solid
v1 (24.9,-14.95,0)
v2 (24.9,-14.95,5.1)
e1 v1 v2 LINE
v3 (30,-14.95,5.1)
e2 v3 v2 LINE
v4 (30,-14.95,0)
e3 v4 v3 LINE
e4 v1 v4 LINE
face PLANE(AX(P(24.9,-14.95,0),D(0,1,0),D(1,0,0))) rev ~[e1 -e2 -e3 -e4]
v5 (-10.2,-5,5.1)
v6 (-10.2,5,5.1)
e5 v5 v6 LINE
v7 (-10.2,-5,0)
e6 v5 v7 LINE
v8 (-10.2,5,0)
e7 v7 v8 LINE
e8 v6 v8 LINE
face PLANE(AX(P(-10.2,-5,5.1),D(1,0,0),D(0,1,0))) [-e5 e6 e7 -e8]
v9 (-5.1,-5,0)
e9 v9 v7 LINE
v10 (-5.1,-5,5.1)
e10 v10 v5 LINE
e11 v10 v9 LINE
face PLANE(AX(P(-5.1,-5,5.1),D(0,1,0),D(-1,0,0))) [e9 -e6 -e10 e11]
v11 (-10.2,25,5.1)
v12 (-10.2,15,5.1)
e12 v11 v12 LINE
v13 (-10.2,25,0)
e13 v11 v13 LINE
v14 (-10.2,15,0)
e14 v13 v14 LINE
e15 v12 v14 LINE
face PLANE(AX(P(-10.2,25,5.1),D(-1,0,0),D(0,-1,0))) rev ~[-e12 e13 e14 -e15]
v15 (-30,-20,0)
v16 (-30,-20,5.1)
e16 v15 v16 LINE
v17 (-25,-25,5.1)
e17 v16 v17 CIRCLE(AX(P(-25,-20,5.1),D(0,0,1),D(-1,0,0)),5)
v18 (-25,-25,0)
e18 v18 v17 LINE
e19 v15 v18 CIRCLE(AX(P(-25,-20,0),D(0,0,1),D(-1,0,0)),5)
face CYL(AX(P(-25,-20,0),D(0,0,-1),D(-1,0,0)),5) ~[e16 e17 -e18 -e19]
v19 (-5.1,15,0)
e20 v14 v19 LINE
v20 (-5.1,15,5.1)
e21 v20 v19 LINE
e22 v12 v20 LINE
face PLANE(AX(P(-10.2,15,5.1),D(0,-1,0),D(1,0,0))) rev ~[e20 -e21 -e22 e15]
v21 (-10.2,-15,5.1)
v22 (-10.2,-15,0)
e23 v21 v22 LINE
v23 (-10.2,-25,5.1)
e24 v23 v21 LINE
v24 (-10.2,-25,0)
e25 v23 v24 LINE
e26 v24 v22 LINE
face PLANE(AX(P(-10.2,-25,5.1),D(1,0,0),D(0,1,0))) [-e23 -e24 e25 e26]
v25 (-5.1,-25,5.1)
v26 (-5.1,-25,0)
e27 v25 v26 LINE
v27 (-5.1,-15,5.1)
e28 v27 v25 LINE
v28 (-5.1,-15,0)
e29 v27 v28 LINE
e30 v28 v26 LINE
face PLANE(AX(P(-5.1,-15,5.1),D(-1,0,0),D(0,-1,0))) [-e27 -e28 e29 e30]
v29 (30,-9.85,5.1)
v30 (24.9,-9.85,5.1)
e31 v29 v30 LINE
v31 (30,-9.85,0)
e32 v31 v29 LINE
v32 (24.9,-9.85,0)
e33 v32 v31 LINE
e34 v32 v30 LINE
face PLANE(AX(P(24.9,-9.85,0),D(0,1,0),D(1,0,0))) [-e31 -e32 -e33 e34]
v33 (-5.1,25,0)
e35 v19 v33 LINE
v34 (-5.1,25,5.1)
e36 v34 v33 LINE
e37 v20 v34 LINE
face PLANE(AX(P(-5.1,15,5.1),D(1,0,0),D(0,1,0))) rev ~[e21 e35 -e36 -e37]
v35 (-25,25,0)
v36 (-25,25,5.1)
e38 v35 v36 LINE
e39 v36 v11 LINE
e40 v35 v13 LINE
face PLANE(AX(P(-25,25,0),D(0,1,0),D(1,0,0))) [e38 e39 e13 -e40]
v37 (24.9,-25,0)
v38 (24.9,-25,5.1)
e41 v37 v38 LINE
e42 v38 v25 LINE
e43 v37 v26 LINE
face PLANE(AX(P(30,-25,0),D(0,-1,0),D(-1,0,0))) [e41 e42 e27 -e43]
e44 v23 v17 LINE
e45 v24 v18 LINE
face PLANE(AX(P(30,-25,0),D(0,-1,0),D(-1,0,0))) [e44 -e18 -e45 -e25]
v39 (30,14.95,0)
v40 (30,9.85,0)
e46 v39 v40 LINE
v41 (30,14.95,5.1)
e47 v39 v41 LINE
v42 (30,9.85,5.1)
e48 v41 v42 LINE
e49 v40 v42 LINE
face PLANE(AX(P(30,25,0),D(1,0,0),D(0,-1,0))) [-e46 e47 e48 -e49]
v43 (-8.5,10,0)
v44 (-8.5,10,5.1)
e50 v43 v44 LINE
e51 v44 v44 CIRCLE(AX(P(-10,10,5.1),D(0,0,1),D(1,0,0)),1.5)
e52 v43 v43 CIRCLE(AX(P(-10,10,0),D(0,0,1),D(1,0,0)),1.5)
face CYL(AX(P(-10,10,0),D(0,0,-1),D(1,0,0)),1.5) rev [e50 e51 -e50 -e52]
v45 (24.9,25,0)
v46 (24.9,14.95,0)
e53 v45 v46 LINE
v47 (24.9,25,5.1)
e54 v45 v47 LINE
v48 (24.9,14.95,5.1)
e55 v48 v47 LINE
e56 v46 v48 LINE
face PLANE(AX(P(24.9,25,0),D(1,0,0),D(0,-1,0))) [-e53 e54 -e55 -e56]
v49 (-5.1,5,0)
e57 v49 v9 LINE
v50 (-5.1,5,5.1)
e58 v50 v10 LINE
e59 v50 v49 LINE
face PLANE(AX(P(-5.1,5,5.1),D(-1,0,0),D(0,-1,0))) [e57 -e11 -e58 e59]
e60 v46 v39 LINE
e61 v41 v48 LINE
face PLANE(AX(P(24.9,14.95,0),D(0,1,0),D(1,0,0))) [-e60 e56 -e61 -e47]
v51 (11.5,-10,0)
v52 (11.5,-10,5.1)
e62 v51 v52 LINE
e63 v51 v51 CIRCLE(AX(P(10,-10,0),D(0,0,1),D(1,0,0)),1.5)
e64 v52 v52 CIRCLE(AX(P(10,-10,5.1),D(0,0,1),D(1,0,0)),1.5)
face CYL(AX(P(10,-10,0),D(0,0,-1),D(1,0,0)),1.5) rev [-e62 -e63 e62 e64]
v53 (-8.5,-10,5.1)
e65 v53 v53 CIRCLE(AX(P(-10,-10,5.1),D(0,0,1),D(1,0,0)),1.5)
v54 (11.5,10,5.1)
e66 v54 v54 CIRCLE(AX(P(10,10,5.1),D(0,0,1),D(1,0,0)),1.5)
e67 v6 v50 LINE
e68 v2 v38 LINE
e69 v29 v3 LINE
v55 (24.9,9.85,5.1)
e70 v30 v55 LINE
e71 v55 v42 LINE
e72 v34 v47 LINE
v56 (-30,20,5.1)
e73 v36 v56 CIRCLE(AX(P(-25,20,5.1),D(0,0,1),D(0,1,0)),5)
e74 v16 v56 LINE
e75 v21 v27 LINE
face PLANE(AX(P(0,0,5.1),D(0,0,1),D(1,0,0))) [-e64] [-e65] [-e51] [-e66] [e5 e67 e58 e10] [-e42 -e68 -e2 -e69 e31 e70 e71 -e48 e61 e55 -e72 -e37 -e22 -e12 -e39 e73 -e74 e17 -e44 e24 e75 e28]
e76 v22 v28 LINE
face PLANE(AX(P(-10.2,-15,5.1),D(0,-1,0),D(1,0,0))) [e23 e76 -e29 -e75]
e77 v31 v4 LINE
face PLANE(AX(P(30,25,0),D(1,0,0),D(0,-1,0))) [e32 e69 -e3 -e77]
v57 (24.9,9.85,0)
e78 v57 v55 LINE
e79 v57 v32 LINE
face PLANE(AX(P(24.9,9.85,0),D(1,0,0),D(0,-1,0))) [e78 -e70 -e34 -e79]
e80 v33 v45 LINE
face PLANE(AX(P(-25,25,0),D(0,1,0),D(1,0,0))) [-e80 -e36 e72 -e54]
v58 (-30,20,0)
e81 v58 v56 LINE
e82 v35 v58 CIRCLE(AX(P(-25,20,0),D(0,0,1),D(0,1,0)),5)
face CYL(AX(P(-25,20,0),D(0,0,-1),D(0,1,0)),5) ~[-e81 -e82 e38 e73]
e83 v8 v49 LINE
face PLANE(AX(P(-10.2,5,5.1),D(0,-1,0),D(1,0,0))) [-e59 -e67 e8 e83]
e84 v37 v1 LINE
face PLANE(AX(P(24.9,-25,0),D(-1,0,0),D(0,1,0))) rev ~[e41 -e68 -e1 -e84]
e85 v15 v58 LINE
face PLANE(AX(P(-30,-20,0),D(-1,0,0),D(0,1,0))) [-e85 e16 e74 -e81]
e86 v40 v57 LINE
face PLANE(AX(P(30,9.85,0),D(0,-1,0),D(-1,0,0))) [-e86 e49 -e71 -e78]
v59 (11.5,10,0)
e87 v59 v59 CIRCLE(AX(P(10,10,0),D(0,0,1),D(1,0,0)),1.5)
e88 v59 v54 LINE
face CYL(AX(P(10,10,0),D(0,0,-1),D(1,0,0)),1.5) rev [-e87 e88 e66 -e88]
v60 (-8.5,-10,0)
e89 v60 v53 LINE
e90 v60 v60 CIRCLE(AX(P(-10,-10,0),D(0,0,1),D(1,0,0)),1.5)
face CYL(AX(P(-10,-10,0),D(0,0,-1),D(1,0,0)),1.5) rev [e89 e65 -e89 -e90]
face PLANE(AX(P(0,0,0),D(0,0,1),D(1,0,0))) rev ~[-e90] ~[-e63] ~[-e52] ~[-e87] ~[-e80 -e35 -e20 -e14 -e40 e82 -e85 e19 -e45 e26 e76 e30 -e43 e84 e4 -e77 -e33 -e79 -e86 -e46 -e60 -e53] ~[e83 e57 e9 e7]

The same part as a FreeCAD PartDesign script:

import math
import FreeCAD as App
import Part
import Sketcher
from FreeCAD import Vector

doc = App.newDocument("Part")
body = doc.addObject("PartDesign::Body", "Body")

# Sketch on XY plane
sketch1 = body.newObject("Sketcher::SketchObject", "Sketch")
sketch1.AttachmentSupport = (doc.getObject("XY_Plane"), [""])
sketch1.MapMode = "FlatFace"
sketch1.addGeometry([
    Part.LineSegment(Vector(-25, -25, 0), Vector(30, -25, 0)),  # 0
    Part.LineSegment(Vector(30, -25, 0), Vector(30, 25, 0)),  # 1
    Part.LineSegment(Vector(30, 25, 0), Vector(-25, 25, 0)),  # 2
    Part.ArcOfCircle(Part.Circle(Vector(-25, 20, 0), Vector(0, 0, 1), 5), math.radians(90), math.radians(180)),  # 3
    Part.LineSegment(Vector(-30, 20, 0), Vector(-30, -20, 0)),  # 4
    Part.ArcOfCircle(Part.Circle(Vector(-25, -20, 0), Vector(0, 0, 1), 5), math.radians(180), math.radians(270)),  # 5
    Part.Circle(Vector(-10, -10, 0), Vector(0, 0, 1), 1.5),  # 6
    Part.Circle(Vector(10, -10, 0), Vector(0, 0, 1), 1.5),  # 7
    Part.Circle(Vector(-10, 10, 0), Vector(0, 0, 1), 1.5),  # 8
    Part.Circle(Vector(10, 10, 0), Vector(0, 0, 1), 1.5),  # 9
], False)
sketch1.addConstraint([
    Sketcher.Constraint("Coincident", 0, 2, 1, 1),
    Sketcher.Constraint("Coincident", 1, 2, 2, 1),
    Sketcher.Constraint("Tangent", 2, 2, 3, 1),
    Sketcher.Constraint("Tangent", 3, 2, 4, 1),
    Sketcher.Constraint("Tangent", 4, 2, 5, 1),
    Sketcher.Constraint("Tangent", 5, 2, 0, 1),
    Sketcher.Constraint("Horizontal", 0),
    Sketcher.Constraint("Vertical", 1),
    Sketcher.Constraint("Horizontal", 2),
    Sketcher.Constraint("Vertical", 4),
    Sketcher.Constraint("Equal", 3, 5),
    Sketcher.Constraint("Equal", 6, 7),
    Sketcher.Constraint("Equal", 7, 8),
    Sketcher.Constraint("Equal", 8, 9),
    Sketcher.Constraint("Symmetric", 7, 3, 8, 3, -1, 1),
    Sketcher.Constraint("Symmetric", 6, 3, 9, 3, -1, 1),
    Sketcher.Constraint("Symmetric", 6, 3, 7, 3, -2),
    Sketcher.Constraint("Diameter", 6, 3.0),
    Sketcher.Constraint("Radius", 3, 5.0),
    Sketcher.Constraint("DistanceY", 1, 1, 1, 2, 50.0),
    Sketcher.Constraint("DistanceX", 6, 3, -1, 1, 10.0),
    Sketcher.Constraint("DistanceY", 6, 3, -1, 1, 10.0),
    Sketcher.Constraint("DistanceY", 5, 3, 6, 3, 10.0),
    Sketcher.Constraint("DistanceX", 0, 1, 0, 2, 55.0),
    Sketcher.Constraint("DistanceX", 3, 3, -1, 1, 25.0),
])
pad1 = body.newObject("PartDesign::Pad", "Pad")
pad1.Profile = sketch1
pad1.Length = 5.1

# Sketch on XY plane
sketch2 = body.newObject("Sketcher::SketchObject", "Sketch001")
sketch2.AttachmentSupport = (doc.getObject("XY_Plane"), [""])
sketch2.MapMode = "FlatFace"
sketch2.addGeometry([
    Part.LineSegment(Vector(25, -15, 0), Vector(30, -15, 0)),  # 0
    Part.LineSegment(Vector(30, -15, 0), Vector(30, -25, 0)),  # 1
    Part.LineSegment(Vector(30, -25, 0), Vector(25, -25, 0)),  # 2
    Part.LineSegment(Vector(25, -25, 0), Vector(25, -15, 0)),  # 3
    Part.LineSegment(Vector(25, 10, 0), Vector(30, 10, 0)),  # 4
    Part.LineSegment(Vector(30, 10, 0), Vector(30, -10, 0)),  # 5
    Part.LineSegment(Vector(30, -10, 0), Vector(25, -10, 0)),  # 6
    Part.LineSegment(Vector(25, -10, 0), Vector(25, 10, 0)),  # 7
    Part.LineSegment(Vector(25, 25, 0), Vector(30, 25, 0)),  # 8
    Part.LineSegment(Vector(30, 25, 0), Vector(30, 15, 0)),  # 9
    Part.LineSegment(Vector(30, 15, 0), Vector(25, 15, 0)),  # 10
    Part.LineSegment(Vector(25, 15, 0), Vector(25, 25, 0)),  # 11
], False)
sketch2.addConstraint([
    Sketcher.Constraint("Coincident", 0, 2, 1, 1),
    Sketcher.Constraint("Coincident", 1, 2, 2, 1),
    Sketcher.Constraint("Coincident", 2, 2, 3, 1),
    Sketcher.Constraint("Coincident", 3, 2, 0, 1),
    Sketcher.Constraint("Coincident", 4, 2, 5, 1),
    Sketcher.Constraint("Coincident", 5, 2, 6, 1),
    Sketcher.Constraint("Coincident", 6, 2, 7, 1),
    Sketcher.Constraint("Coincident", 7, 2, 4, 1),
    Sketcher.Constraint("Coincident", 8, 2, 9, 1),
    Sketcher.Constraint("Coincident", 9, 2, 10, 1),
    Sketcher.Constraint("Coincident", 10, 2, 11, 1),
    Sketcher.Constraint("Coincident", 11, 2, 8, 1),
    Sketcher.Constraint("Horizontal", 0),
    Sketcher.Constraint("Vertical", 1),
    Sketcher.Constraint("Horizontal", 2),
    Sketcher.Constraint("Vertical", 3),
    Sketcher.Constraint("Horizontal", 4),
    Sketcher.Constraint("Vertical", 5),
    Sketcher.Constraint("Horizontal", 6),
    Sketcher.Constraint("Vertical", 7),
    Sketcher.Constraint("Horizontal", 8),
    Sketcher.Constraint("Vertical", 9),
    Sketcher.Constraint("Horizontal", 10),
    Sketcher.Constraint("Vertical", 11),
    Sketcher.Constraint("Symmetric", 1, 2, 8, 2, -1),
    Sketcher.Constraint("Symmetric", 3, 2, 10, 2, -1),
    Sketcher.Constraint("Vertical", 1, 2, 4, 2),
    Sketcher.Constraint("Vertical", 3, 2, 6, 2),
    Sketcher.Constraint("DistanceX", 0, 1, 0, 2, 5.1),
    Sketcher.Constraint("DistanceY", 5, 2, 5, 1, 19.7),
    Sketcher.Constraint("DistanceY", 1, 2, 1, 1, 10.05),
    Sketcher.Constraint("DistanceY", 0, 2, 5, 2, 5.1),
    Sketcher.Constraint("DistanceY", 4, 2, 9, 2, 5.1),
    Sketcher.Constraint("DistanceX", -1, 1, 0, 2, 30.0),
])
pocket1 = body.newObject("PartDesign::Pocket", "Pocket")
pocket1.Profile = sketch2
pocket1.Length = 40
pocket1.Reversed = True

# Sketch on XY plane
sketch3 = body.newObject("Sketcher::SketchObject", "Sketch002")
sketch3.AttachmentSupport = (doc.getObject("XY_Plane"), [""])
sketch3.MapMode = "FlatFace"
sketch3.AttachmentOffset = App.Placement(Vector(0, 0, 5.1), App.Rotation())
sketch3.addGeometry([
    Part.LineSegment(Vector(-10, -25, 0), Vector(-5, -25, 0)),  # 0
    Part.LineSegment(Vector(-5, -25, 0), Vector(-5, -15, 0)),  # 1
    Part.LineSegment(Vector(-5, -15, 0), Vector(-10, -15, 0)),  # 2
    Part.LineSegment(Vector(-10, -15, 0), Vector(-10, -25, 0)),  # 3
    Part.LineSegment(Vector(-5, 25, 0), Vector(-10, 25, 0)),  # 4
    Part.LineSegment(Vector(-10, 25, 0), Vector(-10, 15, 0)),  # 5
    Part.LineSegment(Vector(-10, 15, 0), Vector(-5, 15, 0)),  # 6
    Part.LineSegment(Vector(-5, 15, 0), Vector(-5, 25, 0)),  # 7
    Part.LineSegment(Vector(-5, 5, 0), Vector(-10, 5, 0)),  # 8
    Part.LineSegment(Vector(-10, 5, 0), Vector(-10, -5, 0)),  # 9
    Part.LineSegment(Vector(-10, -5, 0), Vector(-5, -5, 0)),  # 10
    Part.LineSegment(Vector(-5, -5, 0), Vector(-5, 5, 0)),  # 11
], False)
sketch3.addConstraint([
    Sketcher.Constraint("Coincident", 0, 2, 1, 1),
    Sketcher.Constraint("Coincident", 1, 2, 2, 1),
    Sketcher.Constraint("Coincident", 2, 2, 3, 1),
    Sketcher.Constraint("Coincident", 3, 2, 0, 1),
    Sketcher.Constraint("Coincident", 4, 2, 5, 1),
    Sketcher.Constraint("Coincident", 5, 2, 6, 1),
    Sketcher.Constraint("Coincident", 6, 2, 7, 1),
    Sketcher.Constraint("Coincident", 7, 2, 4, 1),
    Sketcher.Constraint("Coincident", 8, 2, 9, 1),
    Sketcher.Constraint("Coincident", 9, 2, 10, 1),
    Sketcher.Constraint("Coincident", 10, 2, 11, 1),
    Sketcher.Constraint("Coincident", 11, 2, 8, 1),
    Sketcher.Constraint("Horizontal", 0),
    Sketcher.Constraint("Vertical", 1),
    Sketcher.Constraint("Horizontal", 2),
    Sketcher.Constraint("Vertical", 3),
    Sketcher.Constraint("Horizontal", 4),
    Sketcher.Constraint("Vertical", 5),
    Sketcher.Constraint("Horizontal", 6),
    Sketcher.Constraint("Vertical", 7),
    Sketcher.Constraint("Horizontal", 8),
    Sketcher.Constraint("Vertical", 9),
    Sketcher.Constraint("Horizontal", 10),
    Sketcher.Constraint("Vertical", 11),
    Sketcher.Constraint("Symmetric", 3, 2, 4, 2, -1),
    Sketcher.Constraint("Symmetric", 1, 2, 6, 2, -1),
    Sketcher.Constraint("Vertical", 5, 2, 8, 2),
    Sketcher.Constraint("Vertical", 7, 2, 10, 2),
    Sketcher.Constraint("Equal", 7, 9),
    Sketcher.Constraint("DistanceY", 1, 1, 1, 2, 10.0),
    Sketcher.Constraint("DistanceX", 0, 1, 0, 2, 5.1),
    Sketcher.Constraint("DistanceY", 2, 2, 5, 2, 30.0),
    Sketcher.Constraint("DistanceY", 8, 2, 5, 2, 10.0),
    Sketcher.Constraint("DistanceX", 0, 2, -1, 1, 5.1),
])
pocket2 = body.newObject("PartDesign::Pocket", "Pocket001")
pocket2.Profile = sketch3
pocket2.Type = "ThroughAll"

doc.recompute()
